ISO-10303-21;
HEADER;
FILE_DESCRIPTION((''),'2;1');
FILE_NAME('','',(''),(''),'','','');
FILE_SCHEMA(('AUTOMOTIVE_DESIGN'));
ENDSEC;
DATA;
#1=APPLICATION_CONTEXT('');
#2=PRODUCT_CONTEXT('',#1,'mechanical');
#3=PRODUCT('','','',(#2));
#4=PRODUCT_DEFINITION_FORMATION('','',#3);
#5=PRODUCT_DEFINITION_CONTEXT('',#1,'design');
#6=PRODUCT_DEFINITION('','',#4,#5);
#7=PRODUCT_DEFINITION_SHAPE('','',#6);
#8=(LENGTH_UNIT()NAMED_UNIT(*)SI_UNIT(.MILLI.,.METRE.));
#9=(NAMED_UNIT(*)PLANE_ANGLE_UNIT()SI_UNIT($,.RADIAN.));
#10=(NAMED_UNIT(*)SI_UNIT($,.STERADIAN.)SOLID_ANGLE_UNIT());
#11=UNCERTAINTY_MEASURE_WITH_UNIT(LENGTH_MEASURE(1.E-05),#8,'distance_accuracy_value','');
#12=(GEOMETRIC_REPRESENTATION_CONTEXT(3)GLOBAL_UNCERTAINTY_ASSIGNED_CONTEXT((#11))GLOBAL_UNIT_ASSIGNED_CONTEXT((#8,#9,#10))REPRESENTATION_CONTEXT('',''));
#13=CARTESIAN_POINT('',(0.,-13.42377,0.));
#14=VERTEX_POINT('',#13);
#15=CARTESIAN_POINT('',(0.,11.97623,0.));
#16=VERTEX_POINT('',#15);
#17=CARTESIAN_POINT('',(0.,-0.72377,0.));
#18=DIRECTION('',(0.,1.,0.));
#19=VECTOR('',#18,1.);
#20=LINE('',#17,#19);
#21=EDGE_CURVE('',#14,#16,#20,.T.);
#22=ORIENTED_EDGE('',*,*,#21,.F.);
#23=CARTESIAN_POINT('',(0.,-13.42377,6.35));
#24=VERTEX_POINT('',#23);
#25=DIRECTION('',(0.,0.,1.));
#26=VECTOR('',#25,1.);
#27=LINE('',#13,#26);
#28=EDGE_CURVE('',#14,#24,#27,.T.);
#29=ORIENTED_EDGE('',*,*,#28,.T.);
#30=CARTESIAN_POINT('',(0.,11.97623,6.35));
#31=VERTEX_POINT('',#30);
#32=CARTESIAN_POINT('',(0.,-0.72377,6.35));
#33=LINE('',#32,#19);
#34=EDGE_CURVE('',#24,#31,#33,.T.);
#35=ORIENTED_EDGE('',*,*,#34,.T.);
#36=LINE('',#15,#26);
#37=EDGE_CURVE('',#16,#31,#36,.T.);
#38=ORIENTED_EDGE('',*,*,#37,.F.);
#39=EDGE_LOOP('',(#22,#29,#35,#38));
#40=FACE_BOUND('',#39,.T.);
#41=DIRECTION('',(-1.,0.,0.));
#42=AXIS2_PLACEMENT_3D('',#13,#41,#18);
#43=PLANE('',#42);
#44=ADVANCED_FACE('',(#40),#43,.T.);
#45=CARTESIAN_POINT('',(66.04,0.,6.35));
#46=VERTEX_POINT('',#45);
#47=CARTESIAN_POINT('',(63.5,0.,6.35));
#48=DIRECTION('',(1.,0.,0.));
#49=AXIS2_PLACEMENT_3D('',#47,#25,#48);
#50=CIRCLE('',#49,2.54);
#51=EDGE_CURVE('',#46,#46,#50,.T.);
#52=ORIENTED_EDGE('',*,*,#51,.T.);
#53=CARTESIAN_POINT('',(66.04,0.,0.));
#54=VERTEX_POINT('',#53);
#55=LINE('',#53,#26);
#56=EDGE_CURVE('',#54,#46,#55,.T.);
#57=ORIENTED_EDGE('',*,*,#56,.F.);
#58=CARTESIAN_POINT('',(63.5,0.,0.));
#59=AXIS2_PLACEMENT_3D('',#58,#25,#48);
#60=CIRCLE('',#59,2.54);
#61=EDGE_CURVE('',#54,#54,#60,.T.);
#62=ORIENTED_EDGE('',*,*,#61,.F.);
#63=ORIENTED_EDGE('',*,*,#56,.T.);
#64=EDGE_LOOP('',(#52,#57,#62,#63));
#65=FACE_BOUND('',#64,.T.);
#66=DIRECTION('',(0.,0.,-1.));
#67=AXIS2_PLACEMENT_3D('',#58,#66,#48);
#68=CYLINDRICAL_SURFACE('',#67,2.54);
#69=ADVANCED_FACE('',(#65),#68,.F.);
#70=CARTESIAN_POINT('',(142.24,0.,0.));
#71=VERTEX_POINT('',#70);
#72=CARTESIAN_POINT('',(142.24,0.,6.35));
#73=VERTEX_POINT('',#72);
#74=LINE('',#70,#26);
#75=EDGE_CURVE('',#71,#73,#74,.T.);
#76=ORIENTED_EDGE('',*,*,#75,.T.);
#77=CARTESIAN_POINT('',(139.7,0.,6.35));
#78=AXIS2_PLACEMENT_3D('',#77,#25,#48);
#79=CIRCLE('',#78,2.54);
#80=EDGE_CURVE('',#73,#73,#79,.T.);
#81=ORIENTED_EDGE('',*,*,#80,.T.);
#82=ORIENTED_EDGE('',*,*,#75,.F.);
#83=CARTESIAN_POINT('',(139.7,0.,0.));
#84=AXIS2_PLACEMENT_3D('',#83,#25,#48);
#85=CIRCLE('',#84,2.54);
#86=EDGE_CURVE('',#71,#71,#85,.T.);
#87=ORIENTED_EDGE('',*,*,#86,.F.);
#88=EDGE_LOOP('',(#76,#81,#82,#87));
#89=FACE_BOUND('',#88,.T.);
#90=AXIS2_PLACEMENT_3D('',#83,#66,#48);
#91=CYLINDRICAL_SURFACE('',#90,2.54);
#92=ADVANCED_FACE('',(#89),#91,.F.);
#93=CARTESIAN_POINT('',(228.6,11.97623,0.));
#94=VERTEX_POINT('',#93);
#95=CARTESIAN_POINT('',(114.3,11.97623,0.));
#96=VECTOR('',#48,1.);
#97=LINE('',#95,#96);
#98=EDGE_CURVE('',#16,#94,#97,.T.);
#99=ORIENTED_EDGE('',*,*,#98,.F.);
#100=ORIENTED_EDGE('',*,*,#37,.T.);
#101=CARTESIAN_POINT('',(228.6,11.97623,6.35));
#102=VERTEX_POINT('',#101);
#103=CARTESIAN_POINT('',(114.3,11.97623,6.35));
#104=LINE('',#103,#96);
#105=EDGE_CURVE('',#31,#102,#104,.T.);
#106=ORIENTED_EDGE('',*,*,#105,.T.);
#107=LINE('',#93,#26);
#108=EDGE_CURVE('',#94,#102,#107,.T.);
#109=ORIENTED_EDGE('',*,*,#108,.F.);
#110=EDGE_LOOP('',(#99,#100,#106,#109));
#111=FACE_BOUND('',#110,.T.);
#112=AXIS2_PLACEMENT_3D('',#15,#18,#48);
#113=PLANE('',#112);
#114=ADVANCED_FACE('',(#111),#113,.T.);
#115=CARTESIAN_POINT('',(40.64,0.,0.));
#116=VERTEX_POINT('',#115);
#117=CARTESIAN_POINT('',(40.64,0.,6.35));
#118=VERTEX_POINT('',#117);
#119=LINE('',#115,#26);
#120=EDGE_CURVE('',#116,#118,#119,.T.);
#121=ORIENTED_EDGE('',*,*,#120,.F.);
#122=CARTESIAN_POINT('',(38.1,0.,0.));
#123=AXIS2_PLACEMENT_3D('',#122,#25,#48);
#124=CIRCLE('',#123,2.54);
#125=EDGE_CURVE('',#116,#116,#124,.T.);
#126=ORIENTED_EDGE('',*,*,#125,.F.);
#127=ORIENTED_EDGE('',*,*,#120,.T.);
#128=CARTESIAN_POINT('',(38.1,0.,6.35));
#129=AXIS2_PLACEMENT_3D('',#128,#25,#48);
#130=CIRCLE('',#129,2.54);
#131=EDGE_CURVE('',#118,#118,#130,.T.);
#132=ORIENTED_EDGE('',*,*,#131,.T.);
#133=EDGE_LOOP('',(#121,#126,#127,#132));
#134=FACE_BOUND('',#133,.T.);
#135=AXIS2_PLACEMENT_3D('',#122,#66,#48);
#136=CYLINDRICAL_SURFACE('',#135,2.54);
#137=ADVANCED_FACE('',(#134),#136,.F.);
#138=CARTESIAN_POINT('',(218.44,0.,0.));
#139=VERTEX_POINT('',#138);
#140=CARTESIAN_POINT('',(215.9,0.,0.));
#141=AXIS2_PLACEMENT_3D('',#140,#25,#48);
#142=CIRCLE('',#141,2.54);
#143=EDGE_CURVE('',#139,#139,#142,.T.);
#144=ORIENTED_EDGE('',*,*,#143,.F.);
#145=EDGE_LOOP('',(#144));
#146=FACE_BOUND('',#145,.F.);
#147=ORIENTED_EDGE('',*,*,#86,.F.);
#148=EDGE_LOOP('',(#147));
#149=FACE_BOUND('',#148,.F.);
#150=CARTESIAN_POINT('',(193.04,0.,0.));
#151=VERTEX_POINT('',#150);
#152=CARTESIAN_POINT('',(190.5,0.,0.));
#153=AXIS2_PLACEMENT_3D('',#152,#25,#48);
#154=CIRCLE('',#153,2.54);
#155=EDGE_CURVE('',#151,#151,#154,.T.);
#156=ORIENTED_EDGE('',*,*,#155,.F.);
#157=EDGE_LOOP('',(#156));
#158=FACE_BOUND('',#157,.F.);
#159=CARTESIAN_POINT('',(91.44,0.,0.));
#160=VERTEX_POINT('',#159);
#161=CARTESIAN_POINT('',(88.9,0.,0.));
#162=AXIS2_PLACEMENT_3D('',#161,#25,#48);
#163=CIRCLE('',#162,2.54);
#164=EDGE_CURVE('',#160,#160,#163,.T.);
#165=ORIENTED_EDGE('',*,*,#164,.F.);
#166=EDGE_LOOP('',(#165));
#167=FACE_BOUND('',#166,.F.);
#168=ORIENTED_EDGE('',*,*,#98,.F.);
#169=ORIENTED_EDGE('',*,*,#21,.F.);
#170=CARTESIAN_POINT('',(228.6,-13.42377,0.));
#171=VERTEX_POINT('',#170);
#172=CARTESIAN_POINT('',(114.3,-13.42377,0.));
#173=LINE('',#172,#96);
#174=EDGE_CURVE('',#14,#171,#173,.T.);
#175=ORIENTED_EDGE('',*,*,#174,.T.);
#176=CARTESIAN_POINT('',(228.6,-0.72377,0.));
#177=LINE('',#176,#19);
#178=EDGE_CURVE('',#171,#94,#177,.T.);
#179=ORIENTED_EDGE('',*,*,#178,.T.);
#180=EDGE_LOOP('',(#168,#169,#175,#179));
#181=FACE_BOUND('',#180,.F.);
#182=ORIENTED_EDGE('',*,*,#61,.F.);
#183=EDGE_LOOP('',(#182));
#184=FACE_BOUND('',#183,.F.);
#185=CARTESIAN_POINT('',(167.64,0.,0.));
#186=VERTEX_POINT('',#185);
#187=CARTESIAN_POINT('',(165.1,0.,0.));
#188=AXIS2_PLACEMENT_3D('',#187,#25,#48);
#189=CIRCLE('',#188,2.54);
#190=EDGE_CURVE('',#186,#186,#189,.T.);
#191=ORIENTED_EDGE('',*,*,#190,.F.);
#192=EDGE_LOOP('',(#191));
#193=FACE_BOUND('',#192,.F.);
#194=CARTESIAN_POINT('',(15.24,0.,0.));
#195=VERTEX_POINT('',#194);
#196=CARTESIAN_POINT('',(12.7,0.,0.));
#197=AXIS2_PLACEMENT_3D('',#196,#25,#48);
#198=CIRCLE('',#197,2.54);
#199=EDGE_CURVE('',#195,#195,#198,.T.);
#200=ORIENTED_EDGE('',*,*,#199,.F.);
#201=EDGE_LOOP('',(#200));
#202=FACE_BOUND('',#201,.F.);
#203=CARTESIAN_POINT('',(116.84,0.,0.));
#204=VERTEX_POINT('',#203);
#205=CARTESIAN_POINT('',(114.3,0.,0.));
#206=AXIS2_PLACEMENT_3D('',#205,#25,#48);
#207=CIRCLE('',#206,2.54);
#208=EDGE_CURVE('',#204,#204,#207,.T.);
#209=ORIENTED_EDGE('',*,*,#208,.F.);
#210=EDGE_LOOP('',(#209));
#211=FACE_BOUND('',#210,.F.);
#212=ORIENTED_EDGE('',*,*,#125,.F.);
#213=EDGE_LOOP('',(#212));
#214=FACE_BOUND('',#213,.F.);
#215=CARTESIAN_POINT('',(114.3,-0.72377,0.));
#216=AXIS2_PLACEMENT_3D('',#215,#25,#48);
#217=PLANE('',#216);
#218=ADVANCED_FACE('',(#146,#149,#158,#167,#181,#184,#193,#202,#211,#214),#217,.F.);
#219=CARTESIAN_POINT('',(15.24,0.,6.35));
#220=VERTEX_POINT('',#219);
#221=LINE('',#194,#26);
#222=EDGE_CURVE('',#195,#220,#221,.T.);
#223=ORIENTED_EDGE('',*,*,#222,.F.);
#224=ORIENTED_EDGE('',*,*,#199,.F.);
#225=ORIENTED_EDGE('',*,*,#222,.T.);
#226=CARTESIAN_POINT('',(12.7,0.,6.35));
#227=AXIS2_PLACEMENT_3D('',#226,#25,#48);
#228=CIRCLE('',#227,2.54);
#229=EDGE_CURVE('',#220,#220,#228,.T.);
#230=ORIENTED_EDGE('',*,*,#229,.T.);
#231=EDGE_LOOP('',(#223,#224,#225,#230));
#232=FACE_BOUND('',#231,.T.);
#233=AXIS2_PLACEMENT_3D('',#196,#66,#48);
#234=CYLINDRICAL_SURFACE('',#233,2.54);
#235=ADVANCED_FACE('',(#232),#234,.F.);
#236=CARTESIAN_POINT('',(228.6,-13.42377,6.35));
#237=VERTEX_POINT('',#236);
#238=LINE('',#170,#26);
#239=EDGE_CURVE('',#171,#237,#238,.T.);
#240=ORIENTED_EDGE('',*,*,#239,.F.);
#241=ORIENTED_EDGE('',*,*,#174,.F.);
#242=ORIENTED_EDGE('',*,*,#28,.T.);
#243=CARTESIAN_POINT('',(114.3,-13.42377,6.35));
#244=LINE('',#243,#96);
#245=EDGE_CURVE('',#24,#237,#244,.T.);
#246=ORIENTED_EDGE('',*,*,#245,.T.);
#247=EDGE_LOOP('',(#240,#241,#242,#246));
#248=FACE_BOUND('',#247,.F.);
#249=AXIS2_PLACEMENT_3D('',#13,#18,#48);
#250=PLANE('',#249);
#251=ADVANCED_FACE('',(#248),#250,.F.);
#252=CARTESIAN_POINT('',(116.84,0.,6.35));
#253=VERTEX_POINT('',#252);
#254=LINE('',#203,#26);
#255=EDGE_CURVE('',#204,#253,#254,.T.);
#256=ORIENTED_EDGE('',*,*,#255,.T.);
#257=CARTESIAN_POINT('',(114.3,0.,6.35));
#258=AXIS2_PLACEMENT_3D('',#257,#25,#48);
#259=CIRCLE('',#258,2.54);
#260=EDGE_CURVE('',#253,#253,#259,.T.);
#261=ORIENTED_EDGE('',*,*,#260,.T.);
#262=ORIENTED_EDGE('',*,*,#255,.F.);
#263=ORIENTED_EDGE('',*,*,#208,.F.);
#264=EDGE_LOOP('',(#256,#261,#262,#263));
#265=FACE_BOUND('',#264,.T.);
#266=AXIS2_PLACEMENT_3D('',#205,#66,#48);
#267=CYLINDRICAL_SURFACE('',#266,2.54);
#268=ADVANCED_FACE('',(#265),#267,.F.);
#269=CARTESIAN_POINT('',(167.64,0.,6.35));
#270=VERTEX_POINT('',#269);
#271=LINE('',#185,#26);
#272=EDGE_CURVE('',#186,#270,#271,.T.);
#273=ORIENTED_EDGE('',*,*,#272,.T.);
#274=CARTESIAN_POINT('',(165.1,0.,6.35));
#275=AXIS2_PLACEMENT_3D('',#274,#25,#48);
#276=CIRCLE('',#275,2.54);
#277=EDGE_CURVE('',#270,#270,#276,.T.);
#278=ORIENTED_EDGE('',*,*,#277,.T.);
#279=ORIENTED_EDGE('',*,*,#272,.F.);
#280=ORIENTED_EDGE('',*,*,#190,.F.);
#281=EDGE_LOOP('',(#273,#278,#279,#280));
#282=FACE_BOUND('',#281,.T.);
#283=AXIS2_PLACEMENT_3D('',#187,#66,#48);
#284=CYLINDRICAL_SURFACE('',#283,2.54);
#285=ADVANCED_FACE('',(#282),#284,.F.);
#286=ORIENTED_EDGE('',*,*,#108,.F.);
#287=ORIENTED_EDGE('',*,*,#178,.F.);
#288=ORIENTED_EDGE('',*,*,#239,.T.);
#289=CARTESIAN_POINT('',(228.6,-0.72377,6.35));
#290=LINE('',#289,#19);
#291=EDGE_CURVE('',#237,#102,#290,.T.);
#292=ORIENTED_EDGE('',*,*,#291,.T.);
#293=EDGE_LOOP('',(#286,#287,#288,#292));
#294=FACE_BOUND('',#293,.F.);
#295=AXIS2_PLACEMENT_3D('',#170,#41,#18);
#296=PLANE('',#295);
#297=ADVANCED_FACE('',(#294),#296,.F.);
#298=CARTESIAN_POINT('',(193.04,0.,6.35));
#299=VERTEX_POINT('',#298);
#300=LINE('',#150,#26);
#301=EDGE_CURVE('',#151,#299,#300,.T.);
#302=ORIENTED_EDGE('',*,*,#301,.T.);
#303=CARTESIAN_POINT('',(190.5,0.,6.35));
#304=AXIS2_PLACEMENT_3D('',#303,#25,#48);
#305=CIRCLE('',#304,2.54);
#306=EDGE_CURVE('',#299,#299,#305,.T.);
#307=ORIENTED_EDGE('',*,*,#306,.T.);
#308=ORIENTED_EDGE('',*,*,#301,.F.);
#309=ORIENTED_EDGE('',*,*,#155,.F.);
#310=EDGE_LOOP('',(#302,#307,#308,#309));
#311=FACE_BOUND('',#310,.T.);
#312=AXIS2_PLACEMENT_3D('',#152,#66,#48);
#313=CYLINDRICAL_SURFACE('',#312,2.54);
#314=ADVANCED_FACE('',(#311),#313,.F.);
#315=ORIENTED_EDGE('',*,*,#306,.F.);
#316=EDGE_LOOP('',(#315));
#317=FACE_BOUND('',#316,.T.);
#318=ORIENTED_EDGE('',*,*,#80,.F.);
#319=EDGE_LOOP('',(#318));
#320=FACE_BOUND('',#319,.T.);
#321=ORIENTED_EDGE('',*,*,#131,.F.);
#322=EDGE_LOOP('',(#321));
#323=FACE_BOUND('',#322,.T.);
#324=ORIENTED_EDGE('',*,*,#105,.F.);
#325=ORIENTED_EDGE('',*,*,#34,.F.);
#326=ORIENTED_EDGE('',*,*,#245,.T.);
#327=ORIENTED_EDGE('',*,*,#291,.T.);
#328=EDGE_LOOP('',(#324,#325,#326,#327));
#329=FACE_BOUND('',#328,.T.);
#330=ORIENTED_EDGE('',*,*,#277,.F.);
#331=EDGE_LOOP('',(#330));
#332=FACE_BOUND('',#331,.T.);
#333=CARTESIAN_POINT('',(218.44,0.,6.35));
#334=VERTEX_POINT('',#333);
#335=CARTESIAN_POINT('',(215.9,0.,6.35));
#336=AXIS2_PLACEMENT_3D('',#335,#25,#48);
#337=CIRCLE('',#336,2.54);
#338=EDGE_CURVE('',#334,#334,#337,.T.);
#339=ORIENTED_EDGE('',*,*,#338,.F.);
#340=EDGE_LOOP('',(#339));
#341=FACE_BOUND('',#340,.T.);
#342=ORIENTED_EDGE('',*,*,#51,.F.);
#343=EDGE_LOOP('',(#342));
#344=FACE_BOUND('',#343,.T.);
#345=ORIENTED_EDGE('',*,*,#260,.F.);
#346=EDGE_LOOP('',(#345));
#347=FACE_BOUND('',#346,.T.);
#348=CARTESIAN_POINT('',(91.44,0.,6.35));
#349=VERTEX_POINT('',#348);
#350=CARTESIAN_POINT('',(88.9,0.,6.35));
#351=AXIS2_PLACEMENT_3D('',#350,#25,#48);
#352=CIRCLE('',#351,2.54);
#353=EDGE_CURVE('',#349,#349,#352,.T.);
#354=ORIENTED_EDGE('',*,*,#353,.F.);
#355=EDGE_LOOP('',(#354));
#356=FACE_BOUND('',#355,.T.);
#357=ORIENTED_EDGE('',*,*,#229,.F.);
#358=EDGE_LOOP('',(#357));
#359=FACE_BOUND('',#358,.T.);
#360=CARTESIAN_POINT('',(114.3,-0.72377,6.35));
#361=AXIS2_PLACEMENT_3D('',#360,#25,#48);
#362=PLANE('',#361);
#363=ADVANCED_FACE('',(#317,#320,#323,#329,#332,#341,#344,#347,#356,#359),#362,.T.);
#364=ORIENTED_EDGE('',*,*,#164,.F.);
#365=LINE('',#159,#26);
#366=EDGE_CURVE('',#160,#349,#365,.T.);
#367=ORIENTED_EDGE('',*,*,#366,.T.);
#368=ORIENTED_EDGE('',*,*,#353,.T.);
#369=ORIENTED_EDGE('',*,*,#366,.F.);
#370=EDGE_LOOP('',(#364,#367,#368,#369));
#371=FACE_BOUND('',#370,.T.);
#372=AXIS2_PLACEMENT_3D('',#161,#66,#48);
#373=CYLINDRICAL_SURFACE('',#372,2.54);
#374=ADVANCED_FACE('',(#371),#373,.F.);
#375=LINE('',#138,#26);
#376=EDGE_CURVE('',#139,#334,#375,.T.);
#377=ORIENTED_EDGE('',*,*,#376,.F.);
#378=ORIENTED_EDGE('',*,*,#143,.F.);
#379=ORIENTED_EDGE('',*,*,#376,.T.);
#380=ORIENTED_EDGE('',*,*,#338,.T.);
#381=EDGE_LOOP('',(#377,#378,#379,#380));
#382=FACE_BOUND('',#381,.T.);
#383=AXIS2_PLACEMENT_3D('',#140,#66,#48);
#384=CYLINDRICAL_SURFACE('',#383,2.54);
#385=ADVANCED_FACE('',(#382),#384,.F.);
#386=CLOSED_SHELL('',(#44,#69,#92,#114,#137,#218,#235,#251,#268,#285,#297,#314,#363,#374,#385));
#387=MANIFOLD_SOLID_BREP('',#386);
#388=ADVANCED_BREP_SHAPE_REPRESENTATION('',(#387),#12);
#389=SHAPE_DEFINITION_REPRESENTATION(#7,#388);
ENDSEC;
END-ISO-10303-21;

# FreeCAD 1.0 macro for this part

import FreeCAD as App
import Part
import Sketcher
Q = App.Units.Quantity


def add_polygon(sketch, points):
    """Adds a closed chain of lines whose ends are joined by coincident constraints."""
    first, n = sketch.GeometryCount, len(points)
    for a, b in zip(points, points[1:] + points[:1]):
        sketch.addGeometry(Part.LineSegment(App.Vector(*a, 0), App.Vector(*b, 0)), False)
    for i in range(n):
        sketch.addConstraint(Sketcher.Constraint("Coincident", first + i, 2, first + (i + 1) % n, 1))

doc = App.newDocument("Part")
body = doc.addObject("PartDesign::Body", "Body")

sketch1 = doc.addObject("Sketcher::SketchObject", "Sketch")
body.addObject(sketch1)
sketch1.AttachmentSupport = (doc.XY_Plane, [""])
sketch1.MapMode = "FlatFace"
add_polygon(sketch1, [(0, 11.97623), (0, -13.42377), (228.6, -13.42377), (228.6, 11.97623)])
sketch1.addGeometry(Part.Circle(App.Vector(12.7, 0, 0), App.Vector(0, 0, 1), 2.54), False)
sketch1.addGeometry(Part.Circle(App.Vector(38.1, 0, 0), App.Vector(0, 0, 1), 2.54), False)
sketch1.addGeometry(Part.Circle(App.Vector(63.5, 0, 0), App.Vector(0, 0, 1), 2.54), False)
sketch1.addGeometry(Part.Circle(App.Vector(88.9, 0, 0), App.Vector(0, 0, 1), 2.54), False)
sketch1.addGeometry(Part.Circle(App.Vector(114.3, 0, 0), App.Vector(0, 0, 1), 2.54), False)
sketch1.addGeometry(Part.Circle(App.Vector(139.7, 0, 0), App.Vector(0, 0, 1), 2.54), False)
sketch1.addGeometry(Part.Circle(App.Vector(165.1, 0, 0), App.Vector(0, 0, 1), 2.54), False)
sketch1.addGeometry(Part.Circle(App.Vector(190.5, 0, 0), App.Vector(0, 0, 1), 2.54), False)
sketch1.addGeometry(Part.Circle(App.Vector(215.9, 0, 0), App.Vector(0, 0, 1), 2.54), False)
sketch1.addConstraint(Sketcher.Constraint("Vertical", 0))
sketch1.addConstraint(Sketcher.Constraint("Horizontal", 1))
sketch1.addConstraint(Sketcher.Constraint("Vertical", 2))
sketch1.addConstraint(Sketcher.Constraint("Horizontal", 3))
sketch1.addConstraint(Sketcher.Constraint("Equal", 4, 5))
sketch1.addConstraint(Sketcher.Constraint("Equal", 5, 6))
sketch1.addConstraint(Sketcher.Constraint("Equal", 6, 7))
sketch1.addConstraint(Sketcher.Constraint("Equal", 7, 8))
sketch1.addConstraint(Sketcher.Constraint("Equal", 8, 9))
sketch1.addConstraint(Sketcher.Constraint("Equal", 9, 10))
sketch1.addConstraint(Sketcher.Constraint("Equal", 10, 11))
sketch1.addConstraint(Sketcher.Constraint("Equal", 11, 12))
sketch1.addConstraint(Sketcher.Constraint("PointOnObject", 4, 3, -1))
sketch1.addConstraint(Sketcher.Constraint("PointOnObject", 5, 3, -1))
sketch1.addConstraint(Sketcher.Constraint("PointOnObject", 6, 3, -1))
sketch1.addConstraint(Sketcher.Constraint("PointOnObject", 7, 3, -1))
sketch1.addConstraint(Sketcher.Constraint("PointOnObject", 8, 3, -1))
sketch1.addConstraint(Sketcher.Constraint("PointOnObject", 9, 3, -1))
sketch1.addConstraint(Sketcher.Constraint("PointOnObject", 10, 3, -1))
sketch1.addConstraint(Sketcher.Constraint("PointOnObject", 11, 3, -1))
sketch1.addConstraint(Sketcher.Constraint("PointOnObject", 12, 3, -1))
sketch1.addConstraint(Sketcher.Constraint("PointOnObject", 0, 2, -2))
sketch1.addConstraint(Sketcher.Constraint("Diameter", 4, Q("0.2 in")))
sketch1.addConstraint(Sketcher.Constraint("DistanceX", 1, 1, 1, 2, Q("9 in")))
sketch1.addConstraint(Sketcher.Constraint("DistanceY", 0, 2, 0, 1, Q("1 in")))
sketch1.addConstraint(Sketcher.Constraint("DistanceX", 4, 3, 5, 3, Q("1 in")))
sketch1.addConstraint(Sketcher.Constraint("DistanceX", 5, 3, 6, 3, Q("1 in")))
sketch1.addConstraint(Sketcher.Constraint("DistanceX", 6, 3, 7, 3, Q("1 in")))
sketch1.addConstraint(Sketcher.Constraint("DistanceX", 7, 3, 8, 3, Q("1 in")))
sketch1.addConstraint(Sketcher.Constraint("DistanceX", 8, 3, 9, 3, Q("1 in")))
sketch1.addConstraint(Sketcher.Constraint("DistanceX", 9, 3, 10, 3, Q("1 in")))
sketch1.addConstraint(Sketcher.Constraint("DistanceX", 10, 3, 11, 3, Q("1 in")))
sketch1.addConstraint(Sketcher.Constraint("DistanceX", 11, 3, 12, 3, Q("1 in")))
sketch1.addConstraint(Sketcher.Constraint("DistanceX", -1, 1, 4, 3, Q("0.5 in")))
sketch1.addConstraint(Sketcher.Constraint("DistanceY", 0, 2, -1, 1, 13.42377))
pad1 = doc.addObject("PartDesign::Pad", "Pad")
body.addObject(pad1)
pad1.Profile = sketch1
pad1.Length = Q("0.25 in")

doc.recompute()
